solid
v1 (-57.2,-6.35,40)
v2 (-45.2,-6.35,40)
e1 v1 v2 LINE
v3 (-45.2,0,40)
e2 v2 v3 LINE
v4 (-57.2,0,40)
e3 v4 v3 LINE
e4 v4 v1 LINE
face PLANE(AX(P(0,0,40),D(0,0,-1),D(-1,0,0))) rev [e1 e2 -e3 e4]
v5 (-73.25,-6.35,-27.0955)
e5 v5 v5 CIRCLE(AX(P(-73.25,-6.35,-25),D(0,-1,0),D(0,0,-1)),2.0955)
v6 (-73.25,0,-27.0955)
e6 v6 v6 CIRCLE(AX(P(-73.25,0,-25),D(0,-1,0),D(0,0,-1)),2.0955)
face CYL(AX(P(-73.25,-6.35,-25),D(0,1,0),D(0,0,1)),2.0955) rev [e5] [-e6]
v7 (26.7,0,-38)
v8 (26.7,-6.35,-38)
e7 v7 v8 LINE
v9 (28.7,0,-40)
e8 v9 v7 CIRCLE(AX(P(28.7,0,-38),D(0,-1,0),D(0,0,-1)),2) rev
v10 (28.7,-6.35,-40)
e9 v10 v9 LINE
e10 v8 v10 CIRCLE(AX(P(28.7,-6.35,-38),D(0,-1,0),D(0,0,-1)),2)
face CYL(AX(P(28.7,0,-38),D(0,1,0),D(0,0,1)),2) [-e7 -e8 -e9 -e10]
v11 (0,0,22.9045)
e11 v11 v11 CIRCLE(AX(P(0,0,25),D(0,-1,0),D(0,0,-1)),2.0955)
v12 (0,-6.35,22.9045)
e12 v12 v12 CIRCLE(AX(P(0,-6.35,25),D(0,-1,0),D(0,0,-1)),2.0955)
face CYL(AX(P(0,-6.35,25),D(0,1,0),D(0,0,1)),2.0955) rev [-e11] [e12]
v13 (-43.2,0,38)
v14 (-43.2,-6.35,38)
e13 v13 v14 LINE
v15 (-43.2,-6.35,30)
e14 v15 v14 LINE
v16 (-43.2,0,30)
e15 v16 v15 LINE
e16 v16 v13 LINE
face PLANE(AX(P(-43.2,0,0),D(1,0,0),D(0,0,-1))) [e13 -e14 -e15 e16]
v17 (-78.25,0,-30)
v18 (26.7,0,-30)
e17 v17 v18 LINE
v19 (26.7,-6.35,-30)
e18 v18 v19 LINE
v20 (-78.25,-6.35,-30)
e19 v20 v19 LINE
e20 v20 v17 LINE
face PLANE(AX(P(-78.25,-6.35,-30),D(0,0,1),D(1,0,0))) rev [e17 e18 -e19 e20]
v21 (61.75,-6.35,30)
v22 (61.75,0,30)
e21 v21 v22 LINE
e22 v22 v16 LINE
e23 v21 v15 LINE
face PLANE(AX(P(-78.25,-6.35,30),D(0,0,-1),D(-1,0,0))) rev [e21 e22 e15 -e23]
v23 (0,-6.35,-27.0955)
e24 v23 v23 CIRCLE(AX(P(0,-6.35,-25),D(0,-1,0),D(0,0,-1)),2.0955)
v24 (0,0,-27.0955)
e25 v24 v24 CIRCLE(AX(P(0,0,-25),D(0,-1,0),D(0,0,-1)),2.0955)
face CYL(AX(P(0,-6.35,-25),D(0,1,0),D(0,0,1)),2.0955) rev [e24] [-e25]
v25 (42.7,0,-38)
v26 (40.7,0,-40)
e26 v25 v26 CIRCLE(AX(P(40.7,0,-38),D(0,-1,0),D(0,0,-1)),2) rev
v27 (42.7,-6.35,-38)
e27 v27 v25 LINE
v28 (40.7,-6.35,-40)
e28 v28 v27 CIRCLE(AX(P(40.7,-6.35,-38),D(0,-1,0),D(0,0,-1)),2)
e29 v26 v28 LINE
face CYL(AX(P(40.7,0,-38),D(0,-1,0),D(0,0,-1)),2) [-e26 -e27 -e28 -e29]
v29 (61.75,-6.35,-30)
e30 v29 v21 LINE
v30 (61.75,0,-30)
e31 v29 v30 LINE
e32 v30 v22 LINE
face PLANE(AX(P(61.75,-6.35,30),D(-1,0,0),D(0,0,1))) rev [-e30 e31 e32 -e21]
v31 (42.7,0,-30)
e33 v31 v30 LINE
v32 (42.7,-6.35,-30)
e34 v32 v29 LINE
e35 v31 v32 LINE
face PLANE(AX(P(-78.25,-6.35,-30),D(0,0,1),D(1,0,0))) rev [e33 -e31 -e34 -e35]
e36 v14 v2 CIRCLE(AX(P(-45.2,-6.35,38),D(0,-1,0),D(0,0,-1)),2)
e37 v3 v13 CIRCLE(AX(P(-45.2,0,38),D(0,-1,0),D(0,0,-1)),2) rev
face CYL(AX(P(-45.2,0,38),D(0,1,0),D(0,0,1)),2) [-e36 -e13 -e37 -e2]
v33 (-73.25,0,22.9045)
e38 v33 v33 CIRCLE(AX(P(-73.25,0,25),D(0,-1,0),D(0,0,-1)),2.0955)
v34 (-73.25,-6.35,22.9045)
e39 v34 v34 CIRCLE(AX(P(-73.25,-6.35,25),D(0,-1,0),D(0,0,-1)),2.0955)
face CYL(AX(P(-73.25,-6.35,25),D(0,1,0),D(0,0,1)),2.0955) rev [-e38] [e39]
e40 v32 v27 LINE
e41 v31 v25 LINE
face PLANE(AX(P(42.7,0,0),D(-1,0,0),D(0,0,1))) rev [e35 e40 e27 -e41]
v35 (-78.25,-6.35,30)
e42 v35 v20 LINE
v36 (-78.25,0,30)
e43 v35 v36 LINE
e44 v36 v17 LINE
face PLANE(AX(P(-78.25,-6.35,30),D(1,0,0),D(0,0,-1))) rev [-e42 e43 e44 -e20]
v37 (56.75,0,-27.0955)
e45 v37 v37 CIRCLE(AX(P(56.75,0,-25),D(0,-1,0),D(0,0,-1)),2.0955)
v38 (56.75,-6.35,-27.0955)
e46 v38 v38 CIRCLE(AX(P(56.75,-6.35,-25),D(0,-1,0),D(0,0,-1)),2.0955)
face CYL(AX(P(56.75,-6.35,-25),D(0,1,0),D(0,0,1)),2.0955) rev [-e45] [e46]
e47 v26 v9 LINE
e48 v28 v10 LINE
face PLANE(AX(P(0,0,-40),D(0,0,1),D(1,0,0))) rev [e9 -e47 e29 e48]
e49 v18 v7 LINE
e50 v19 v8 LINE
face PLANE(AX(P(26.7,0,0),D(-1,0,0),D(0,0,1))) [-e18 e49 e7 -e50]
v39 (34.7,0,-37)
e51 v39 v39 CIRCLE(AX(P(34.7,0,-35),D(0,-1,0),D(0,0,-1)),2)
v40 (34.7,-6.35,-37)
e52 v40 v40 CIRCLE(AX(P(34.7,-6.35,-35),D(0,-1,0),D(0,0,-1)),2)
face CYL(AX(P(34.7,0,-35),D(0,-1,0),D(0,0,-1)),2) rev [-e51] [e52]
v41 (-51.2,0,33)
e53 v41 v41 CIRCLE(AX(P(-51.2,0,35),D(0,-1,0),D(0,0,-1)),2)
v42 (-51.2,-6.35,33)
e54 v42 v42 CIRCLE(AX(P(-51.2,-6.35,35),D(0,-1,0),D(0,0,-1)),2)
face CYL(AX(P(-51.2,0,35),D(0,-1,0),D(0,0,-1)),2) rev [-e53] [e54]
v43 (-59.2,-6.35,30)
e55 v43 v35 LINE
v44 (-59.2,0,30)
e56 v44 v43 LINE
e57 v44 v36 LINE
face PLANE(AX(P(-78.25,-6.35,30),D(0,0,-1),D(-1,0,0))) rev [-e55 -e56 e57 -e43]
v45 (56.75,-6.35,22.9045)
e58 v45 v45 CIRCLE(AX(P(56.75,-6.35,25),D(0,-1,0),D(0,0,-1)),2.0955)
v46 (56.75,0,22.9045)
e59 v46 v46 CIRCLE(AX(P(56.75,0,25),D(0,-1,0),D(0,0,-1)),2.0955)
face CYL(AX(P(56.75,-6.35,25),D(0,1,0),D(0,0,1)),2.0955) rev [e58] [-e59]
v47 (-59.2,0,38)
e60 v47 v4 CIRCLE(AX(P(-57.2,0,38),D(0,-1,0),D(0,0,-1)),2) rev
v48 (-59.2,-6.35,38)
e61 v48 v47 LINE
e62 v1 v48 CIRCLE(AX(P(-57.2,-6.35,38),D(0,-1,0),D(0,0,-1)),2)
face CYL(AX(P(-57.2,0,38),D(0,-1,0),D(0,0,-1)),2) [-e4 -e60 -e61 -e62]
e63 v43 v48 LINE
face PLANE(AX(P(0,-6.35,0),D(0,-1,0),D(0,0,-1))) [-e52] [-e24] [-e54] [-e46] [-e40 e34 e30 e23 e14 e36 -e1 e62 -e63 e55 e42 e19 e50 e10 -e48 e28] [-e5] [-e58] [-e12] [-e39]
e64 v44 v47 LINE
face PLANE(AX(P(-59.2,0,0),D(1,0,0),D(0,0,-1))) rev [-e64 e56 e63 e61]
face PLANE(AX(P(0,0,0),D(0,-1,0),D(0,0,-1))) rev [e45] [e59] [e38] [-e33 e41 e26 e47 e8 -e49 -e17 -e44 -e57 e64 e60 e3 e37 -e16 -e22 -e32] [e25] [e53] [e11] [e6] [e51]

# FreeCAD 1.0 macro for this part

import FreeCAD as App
import Part
import Sketcher
from FreeCAD import Vector


def edges_at(feature, points):
    """Names of the edges that pass closest to the given points."""
    edges = feature.Shape.Edges
    near = lambda p: min(range(len(edges)), key=lambda i: edges[i].distToShape(Part.Vertex(*p))[0])
    return sorted({f"Edge{near(p) + 1}" for p in points})


def add_polygon(sketch, points):
    """Adds a closed chain of lines whose ends are joined by coincident constraints."""
    first, n = sketch.GeometryCount, len(points)
    for a, b in zip(points, points[1:] + points[:1]):
        sketch.addGeometry(Part.LineSegment(App.Vector(*a, 0), App.Vector(*b, 0)), False)
    for i in range(n):
        sketch.addConstraint(Sketcher.Constraint("Coincident", first + i, 2, first + (i + 1) % n, 1))

doc = App.newDocument("Part")
params = doc.addObject("Spreadsheet::Sheet", "Params")
for row, (alias, value) in enumerate([
    ("sketch1_width", "140 mm"),
    ("sketch1_height", "60 mm"),
    ("pad1_length", "6.35 mm"),
    ("sketch2_diameter", "4 mm"),
    ("sketch2_width", "16 mm"),
    ("sketch2_height", "10 mm"),
    ("pad2_length", "6.35 mm"),
    ("fillet_radius", "2 mm"),
], start=1):
    params.set(f"A{row}", alias)
    params.set(f"B{row}", "=" + value)
    params.setAlias(f"B{row}", alias)

body = doc.addObject("PartDesign::Body", "Body")

# Sketch on XZ plane
sketch1 = body.newObject("Sketcher::SketchObject", "Sketch")
sketch1.AttachmentSupport = (doc.getObject("XZ_Plane"), [""])
sketch1.MapMode = "FlatFace"
add_polygon(sketch1, [(-78.2, 30), (-78.2, -30), (61.8, -30), (61.8, 30)])  # lines 0-3
sketch1.addGeometry(Part.Circle(Vector(-73.2, -25, 0), Vector(0, 0, 1), 2.1), False)  # 4
sketch1.addGeometry(Part.Circle(Vector(0, -25, 0), Vector(0, 0, 1), 2.1), False)  # 5
sketch1.addGeometry(Part.Circle(Vector(56.8, -25, 0), Vector(0, 0, 1), 2.1), False)  # 6
sketch1.addGeometry(Part.Circle(Vector(-73.2, 25, 0), Vector(0, 0, 1), 2.1), False)  # 7
sketch1.addGeometry(Part.Circle(Vector(0, 25, 0), Vector(0, 0, 1), 2.1), False)  # 8
sketch1.addGeometry(Part.Circle(Vector(56.8, 25, 0), Vector(0, 0, 1), 2.1), False)  # 9
sketch1.addConstraint([
    Sketcher.Constraint("Vertical", 0),
    Sketcher.Constraint("Horizontal", 1),
    Sketcher.Constraint("Vertical", 2),
    Sketcher.Constraint("Horizontal", 3),
    Sketcher.Constraint("Equal", 4, 5),
    Sketcher.Constraint("Equal", 5, 6),
    Sketcher.Constraint("Equal", 6, 7),
    Sketcher.Constraint("Equal", 7, 8),
    Sketcher.Constraint("Equal", 8, 9),
    Sketcher.Constraint("Symmetric", 5, 3, 8, 3, -1, 1),
    Sketcher.Constraint("Symmetric", 4, 3, 7, 3, -1),
    Sketcher.Constraint("Symmetric", 6, 3, 9, 3, -1),
    Sketcher.Constraint("PointOnObject", 5, 3, -2),
    Sketcher.Constraint("Horizontal", 4, 3, 5, 3),
    Sketcher.Constraint("Horizontal", 5, 3, 6, 3),
    Sketcher.Constraint("DistanceX", 1, 1, 1, 2, 140.0),
    Sketcher.Constraint("DistanceY", 0, 2, 0, 1, 60.0),
    Sketcher.Constraint("Diameter", 4, 4.191),
    Sketcher.Constraint("DistanceY", 4, 3, -1, 1, 25.0),
    Sketcher.Constraint("DistanceY", 0, 2, -1, 1, 30.0),
    Sketcher.Constraint("DistanceX", 4, 3, 6, 3, 130.0),
    Sketcher.Constraint("DistanceX", 0, 2, 4, 3, 5.0),
    Sketcher.Constraint("DistanceX", 4, 3, -1, 1, 73.25),
])
sketch1.setExpression("Constraints[19]", "Params.sketch1_width")
sketch1.setExpression("Constraints[20]", "Params.sketch1_height")
pad1 = body.newObject("PartDesign::Pad", "Pad")
pad1.Profile = sketch1
pad1.setExpression("Length", "Params.pad1_length")

# Sketch on XZ plane
sketch2 = body.newObject("Sketcher::SketchObject", "Sketch001")
sketch2.AttachmentSupport = (doc.getObject("XZ_Plane"), [""])
sketch2.MapMode = "FlatFace"
sketch2.AttachmentOffset = App.Placement(Vector(0, 0, 6.35), App.Rotation())
add_polygon(sketch2, [(26.7, -30), (26.7, -40), (42.7, -40), (42.7, -30)])  # lines 0-3
sketch2.addGeometry(Part.Circle(Vector(34.7, -35, 0), Vector(0, 0, 1), 2), False)  # 4
add_polygon(sketch2, [(-59.2, 40), (-59.2, 30), (-43.2, 30), (-43.2, 40)])  # lines 5-8
sketch2.addGeometry(Part.Circle(Vector(-51.2, 35, 0), Vector(0, 0, 1), 2), False)  # 9
sketch2.addConstraint([
    Sketcher.Constraint("Vertical", 0),
    Sketcher.Constraint("Horizontal", 1),
    Sketcher.Constraint("Vertical", 2),
    Sketcher.Constraint("Horizontal", 3),
    Sketcher.Constraint("Vertical", 5),
    Sketcher.Constraint("Horizontal", 6),
    Sketcher.Constraint("Vertical", 7),
    Sketcher.Constraint("Horizontal", 8),
    Sketcher.Constraint("Equal", 4, 9),
    Sketcher.Constraint("Equal", 3, 6),
    Sketcher.Constraint("Equal", 2, 5),
    Sketcher.Constraint("Diameter", 4, 4.0),
    Sketcher.Constraint("DistanceX", 1, 1, 1, 2, 16.0),
    Sketcher.Constraint("DistanceY", 0, 2, 0, 1, 10.0),
    Sketcher.Constraint("DistanceY", 4, 3, -1, 1, 35.0),
    Sketcher.Constraint("DistanceY", -1, 1, 9, 3, 35.0),
    Sketcher.Constraint("DistanceY", 0, 2, -1, 1, 40.0),
    Sketcher.Constraint("DistanceY", -1, 1, 5, 2, 30.0),
    Sketcher.Constraint("DistanceX", 0, 2, 4, 3, 8.0),
    Sketcher.Constraint("DistanceX", 5, 2, 9, 3, 8.0),
    Sketcher.Constraint("DistanceX", -1, 1, 4, 3, 34.7),
    Sketcher.Constraint("DistanceX", 9, 3, -1, 1, 51.2),
])
sketch2.setExpression("Constraints[19]", "Params.sketch2_diameter")
sketch2.setExpression("Constraints[20]", "Params.sketch2_width")
sketch2.setExpression("Constraints[21]", "Params.sketch2_height")
pad2 = body.newObject("PartDesign::Pad", "Pad001")
pad2.Profile = sketch2
pad2.setExpression("Length", "Params.pad2_length")
pad2.Reversed = True
doc.recompute()

fillet = body.newObject("PartDesign::Fillet", "Fillet")
fillet.Base = (pad2, edges_at(pad2, [
    (42.7, -3.175, -40),
    (26.7, -3.175, -40),
    (-59.2, -3.175, 40),
    (-43.2, -3.175, 40),
]))
fillet.setExpression("Radius", "Params.fillet_radius")

doc.recompute()
